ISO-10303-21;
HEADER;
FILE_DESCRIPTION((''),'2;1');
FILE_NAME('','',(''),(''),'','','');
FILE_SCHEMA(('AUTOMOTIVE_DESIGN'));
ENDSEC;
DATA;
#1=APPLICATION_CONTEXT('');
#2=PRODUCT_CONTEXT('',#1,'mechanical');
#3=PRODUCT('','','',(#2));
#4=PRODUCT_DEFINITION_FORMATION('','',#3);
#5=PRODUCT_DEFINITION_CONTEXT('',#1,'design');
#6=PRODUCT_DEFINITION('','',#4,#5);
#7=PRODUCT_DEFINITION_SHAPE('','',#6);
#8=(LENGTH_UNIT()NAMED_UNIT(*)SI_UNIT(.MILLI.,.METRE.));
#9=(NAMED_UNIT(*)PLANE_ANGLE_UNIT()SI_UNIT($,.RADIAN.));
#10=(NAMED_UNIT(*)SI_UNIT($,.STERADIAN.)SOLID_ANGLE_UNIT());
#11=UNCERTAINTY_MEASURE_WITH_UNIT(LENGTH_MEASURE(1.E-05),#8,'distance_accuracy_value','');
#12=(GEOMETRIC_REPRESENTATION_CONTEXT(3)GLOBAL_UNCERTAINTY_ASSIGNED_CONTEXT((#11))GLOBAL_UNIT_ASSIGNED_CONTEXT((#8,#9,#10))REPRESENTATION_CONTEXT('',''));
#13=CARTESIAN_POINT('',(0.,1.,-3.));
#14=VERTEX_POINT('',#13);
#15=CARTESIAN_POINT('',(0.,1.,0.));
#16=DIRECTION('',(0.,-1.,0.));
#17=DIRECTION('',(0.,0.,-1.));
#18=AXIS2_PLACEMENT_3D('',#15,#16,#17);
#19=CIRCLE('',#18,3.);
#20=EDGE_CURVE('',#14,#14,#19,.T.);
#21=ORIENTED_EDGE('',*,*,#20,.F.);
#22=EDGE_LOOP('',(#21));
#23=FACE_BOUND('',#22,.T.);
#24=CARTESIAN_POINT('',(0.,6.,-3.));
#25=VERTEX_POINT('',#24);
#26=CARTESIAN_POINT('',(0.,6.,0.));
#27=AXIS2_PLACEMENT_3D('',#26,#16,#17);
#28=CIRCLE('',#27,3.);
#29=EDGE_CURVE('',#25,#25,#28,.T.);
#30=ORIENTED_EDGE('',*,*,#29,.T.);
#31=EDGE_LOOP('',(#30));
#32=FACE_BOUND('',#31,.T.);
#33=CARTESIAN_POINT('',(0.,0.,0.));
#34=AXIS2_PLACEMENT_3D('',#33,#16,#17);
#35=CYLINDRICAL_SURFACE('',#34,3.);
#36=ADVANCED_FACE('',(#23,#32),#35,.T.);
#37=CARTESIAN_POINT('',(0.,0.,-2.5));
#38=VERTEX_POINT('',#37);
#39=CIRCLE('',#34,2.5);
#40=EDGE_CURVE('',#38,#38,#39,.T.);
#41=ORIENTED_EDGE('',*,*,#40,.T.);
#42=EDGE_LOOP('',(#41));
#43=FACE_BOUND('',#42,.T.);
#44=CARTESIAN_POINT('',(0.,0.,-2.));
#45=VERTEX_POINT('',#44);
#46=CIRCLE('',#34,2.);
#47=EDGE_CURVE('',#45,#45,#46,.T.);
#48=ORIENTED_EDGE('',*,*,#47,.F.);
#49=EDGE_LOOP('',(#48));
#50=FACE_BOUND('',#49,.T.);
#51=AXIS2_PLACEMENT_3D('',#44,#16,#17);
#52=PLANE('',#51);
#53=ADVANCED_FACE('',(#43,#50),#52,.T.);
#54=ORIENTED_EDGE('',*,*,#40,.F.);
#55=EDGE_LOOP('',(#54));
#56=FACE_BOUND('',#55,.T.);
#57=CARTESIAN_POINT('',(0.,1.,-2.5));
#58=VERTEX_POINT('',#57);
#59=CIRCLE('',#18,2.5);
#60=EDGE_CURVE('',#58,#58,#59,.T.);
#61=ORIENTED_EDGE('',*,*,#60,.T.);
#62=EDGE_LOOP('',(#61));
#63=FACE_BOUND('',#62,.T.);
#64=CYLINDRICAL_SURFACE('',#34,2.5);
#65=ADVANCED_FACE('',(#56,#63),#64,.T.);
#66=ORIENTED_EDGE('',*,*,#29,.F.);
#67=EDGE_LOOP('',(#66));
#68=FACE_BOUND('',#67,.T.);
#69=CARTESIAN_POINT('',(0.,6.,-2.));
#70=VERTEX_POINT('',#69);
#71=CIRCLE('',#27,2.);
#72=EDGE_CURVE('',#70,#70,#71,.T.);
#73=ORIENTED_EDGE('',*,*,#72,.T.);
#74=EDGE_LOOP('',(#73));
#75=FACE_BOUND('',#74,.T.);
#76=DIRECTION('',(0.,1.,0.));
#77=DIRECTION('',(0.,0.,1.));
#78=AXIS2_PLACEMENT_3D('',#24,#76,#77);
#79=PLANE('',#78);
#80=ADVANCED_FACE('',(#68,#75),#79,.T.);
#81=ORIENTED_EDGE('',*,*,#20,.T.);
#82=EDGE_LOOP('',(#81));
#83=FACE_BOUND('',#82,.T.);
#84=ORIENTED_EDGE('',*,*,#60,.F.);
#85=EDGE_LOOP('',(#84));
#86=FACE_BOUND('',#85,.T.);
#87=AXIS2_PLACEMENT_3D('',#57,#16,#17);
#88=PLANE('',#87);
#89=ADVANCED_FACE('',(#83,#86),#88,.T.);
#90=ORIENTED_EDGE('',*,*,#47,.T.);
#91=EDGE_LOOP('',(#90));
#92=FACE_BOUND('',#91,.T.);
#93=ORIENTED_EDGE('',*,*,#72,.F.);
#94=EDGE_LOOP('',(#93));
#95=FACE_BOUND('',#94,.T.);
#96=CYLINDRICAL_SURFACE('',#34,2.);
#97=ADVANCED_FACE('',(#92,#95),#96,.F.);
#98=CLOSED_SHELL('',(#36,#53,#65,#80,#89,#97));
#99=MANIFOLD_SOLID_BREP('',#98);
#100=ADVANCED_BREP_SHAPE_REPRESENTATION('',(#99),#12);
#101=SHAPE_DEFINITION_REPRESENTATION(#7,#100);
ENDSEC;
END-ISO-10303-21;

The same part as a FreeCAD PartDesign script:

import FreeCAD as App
import Part
import Sketcher

V = App.Vector
Q = App.Units.Quantity


def add_polygon(sketch, points):
    """Adds a closed chain of lines whose ends are joined by coincident constraints."""
    first, n = sketch.GeometryCount, len(points)
    for a, b in zip(points, points[1:] + points[:1]):
        sketch.addGeometry(Part.LineSegment(App.Vector(*a, 0), App.Vector(*b, 0)), False)
    for i in range(n):
        sketch.addConstraint(Sketcher.Constraint("Coincident", first + i, 2, first + (i + 1) % n, 1))

doc = App.newDocument("Part")
params = doc.addObject("Spreadsheet::Sheet", "Params")
for row, (alias, value) in enumerate([
    ("sketch1_width", "6 mm"),
    ("sketch1_width2", "1 mm"),
    ("revolution_angle", "360 deg"),
], start=1):
    params.set(f"A{row}", alias)
    params.set(f"B{row}", "=" + value)
    params.setAlias(f"B{row}", alias)

body = doc.addObject("PartDesign::Body", "Body")

# Sketch on YZ plane
sketch1 = body.newObject("Sketcher::SketchObject", "Sketch")
sketch1.AttachmentSupport = (doc.getObject("YZ_Plane"), [""])
sketch1.MapMode = "FlatFace"
add_polygon(sketch1, [(6, -2), (0, -2), (0, -2.5), (1, -2.5), (1, -3), (6, -3)])  # lines 0-5
sketch1.addConstraint(Sketcher.Constraint("Horizontal", 0))
sketch1.addConstraint(Sketcher.Constraint("Vertical", 1))
sketch1.addConstraint(Sketcher.Constraint("Horizontal", 2))
sketch1.addConstraint(Sketcher.Constraint("Vertical", 3))
sketch1.addConstraint(Sketcher.Constraint("Horizontal", 4))
sketch1.addConstraint(Sketcher.Constraint("Vertical", 5))
sketch1.addConstraint(Sketcher.Constraint("PointOnObject", 0, 2, -2))
sketch1.addConstraint(Sketcher.Constraint("Equal", 1, 3))
sketch1.addConstraint(Sketcher.Constraint("Equal", 2, 5))
sketch1.addConstraint(Sketcher.Constraint("DistanceX", 0, 2, 0, 1, Q("6 mm")))
sketch1.addConstraint(Sketcher.Constraint("DistanceX", 2, 1, 2, 2, Q("1 mm")))
sketch1.addConstraint(Sketcher.Constraint("DistanceY", 0, 2, -1, 1, Q("2 mm")))
sketch1.setExpression("Constraints[15]", "Params.sketch1_width")
sketch1.setExpression("Constraints[16]", "Params.sketch1_width2")
revolution = body.newObject("PartDesign::Revolution", "Revolution")
revolution.Profile = sketch1
revolution.ReferenceAxis = (sketch1, ["H_Axis"])
revolution.setExpression("Angle", "Params.revolution_angle")

doc.recompute()
